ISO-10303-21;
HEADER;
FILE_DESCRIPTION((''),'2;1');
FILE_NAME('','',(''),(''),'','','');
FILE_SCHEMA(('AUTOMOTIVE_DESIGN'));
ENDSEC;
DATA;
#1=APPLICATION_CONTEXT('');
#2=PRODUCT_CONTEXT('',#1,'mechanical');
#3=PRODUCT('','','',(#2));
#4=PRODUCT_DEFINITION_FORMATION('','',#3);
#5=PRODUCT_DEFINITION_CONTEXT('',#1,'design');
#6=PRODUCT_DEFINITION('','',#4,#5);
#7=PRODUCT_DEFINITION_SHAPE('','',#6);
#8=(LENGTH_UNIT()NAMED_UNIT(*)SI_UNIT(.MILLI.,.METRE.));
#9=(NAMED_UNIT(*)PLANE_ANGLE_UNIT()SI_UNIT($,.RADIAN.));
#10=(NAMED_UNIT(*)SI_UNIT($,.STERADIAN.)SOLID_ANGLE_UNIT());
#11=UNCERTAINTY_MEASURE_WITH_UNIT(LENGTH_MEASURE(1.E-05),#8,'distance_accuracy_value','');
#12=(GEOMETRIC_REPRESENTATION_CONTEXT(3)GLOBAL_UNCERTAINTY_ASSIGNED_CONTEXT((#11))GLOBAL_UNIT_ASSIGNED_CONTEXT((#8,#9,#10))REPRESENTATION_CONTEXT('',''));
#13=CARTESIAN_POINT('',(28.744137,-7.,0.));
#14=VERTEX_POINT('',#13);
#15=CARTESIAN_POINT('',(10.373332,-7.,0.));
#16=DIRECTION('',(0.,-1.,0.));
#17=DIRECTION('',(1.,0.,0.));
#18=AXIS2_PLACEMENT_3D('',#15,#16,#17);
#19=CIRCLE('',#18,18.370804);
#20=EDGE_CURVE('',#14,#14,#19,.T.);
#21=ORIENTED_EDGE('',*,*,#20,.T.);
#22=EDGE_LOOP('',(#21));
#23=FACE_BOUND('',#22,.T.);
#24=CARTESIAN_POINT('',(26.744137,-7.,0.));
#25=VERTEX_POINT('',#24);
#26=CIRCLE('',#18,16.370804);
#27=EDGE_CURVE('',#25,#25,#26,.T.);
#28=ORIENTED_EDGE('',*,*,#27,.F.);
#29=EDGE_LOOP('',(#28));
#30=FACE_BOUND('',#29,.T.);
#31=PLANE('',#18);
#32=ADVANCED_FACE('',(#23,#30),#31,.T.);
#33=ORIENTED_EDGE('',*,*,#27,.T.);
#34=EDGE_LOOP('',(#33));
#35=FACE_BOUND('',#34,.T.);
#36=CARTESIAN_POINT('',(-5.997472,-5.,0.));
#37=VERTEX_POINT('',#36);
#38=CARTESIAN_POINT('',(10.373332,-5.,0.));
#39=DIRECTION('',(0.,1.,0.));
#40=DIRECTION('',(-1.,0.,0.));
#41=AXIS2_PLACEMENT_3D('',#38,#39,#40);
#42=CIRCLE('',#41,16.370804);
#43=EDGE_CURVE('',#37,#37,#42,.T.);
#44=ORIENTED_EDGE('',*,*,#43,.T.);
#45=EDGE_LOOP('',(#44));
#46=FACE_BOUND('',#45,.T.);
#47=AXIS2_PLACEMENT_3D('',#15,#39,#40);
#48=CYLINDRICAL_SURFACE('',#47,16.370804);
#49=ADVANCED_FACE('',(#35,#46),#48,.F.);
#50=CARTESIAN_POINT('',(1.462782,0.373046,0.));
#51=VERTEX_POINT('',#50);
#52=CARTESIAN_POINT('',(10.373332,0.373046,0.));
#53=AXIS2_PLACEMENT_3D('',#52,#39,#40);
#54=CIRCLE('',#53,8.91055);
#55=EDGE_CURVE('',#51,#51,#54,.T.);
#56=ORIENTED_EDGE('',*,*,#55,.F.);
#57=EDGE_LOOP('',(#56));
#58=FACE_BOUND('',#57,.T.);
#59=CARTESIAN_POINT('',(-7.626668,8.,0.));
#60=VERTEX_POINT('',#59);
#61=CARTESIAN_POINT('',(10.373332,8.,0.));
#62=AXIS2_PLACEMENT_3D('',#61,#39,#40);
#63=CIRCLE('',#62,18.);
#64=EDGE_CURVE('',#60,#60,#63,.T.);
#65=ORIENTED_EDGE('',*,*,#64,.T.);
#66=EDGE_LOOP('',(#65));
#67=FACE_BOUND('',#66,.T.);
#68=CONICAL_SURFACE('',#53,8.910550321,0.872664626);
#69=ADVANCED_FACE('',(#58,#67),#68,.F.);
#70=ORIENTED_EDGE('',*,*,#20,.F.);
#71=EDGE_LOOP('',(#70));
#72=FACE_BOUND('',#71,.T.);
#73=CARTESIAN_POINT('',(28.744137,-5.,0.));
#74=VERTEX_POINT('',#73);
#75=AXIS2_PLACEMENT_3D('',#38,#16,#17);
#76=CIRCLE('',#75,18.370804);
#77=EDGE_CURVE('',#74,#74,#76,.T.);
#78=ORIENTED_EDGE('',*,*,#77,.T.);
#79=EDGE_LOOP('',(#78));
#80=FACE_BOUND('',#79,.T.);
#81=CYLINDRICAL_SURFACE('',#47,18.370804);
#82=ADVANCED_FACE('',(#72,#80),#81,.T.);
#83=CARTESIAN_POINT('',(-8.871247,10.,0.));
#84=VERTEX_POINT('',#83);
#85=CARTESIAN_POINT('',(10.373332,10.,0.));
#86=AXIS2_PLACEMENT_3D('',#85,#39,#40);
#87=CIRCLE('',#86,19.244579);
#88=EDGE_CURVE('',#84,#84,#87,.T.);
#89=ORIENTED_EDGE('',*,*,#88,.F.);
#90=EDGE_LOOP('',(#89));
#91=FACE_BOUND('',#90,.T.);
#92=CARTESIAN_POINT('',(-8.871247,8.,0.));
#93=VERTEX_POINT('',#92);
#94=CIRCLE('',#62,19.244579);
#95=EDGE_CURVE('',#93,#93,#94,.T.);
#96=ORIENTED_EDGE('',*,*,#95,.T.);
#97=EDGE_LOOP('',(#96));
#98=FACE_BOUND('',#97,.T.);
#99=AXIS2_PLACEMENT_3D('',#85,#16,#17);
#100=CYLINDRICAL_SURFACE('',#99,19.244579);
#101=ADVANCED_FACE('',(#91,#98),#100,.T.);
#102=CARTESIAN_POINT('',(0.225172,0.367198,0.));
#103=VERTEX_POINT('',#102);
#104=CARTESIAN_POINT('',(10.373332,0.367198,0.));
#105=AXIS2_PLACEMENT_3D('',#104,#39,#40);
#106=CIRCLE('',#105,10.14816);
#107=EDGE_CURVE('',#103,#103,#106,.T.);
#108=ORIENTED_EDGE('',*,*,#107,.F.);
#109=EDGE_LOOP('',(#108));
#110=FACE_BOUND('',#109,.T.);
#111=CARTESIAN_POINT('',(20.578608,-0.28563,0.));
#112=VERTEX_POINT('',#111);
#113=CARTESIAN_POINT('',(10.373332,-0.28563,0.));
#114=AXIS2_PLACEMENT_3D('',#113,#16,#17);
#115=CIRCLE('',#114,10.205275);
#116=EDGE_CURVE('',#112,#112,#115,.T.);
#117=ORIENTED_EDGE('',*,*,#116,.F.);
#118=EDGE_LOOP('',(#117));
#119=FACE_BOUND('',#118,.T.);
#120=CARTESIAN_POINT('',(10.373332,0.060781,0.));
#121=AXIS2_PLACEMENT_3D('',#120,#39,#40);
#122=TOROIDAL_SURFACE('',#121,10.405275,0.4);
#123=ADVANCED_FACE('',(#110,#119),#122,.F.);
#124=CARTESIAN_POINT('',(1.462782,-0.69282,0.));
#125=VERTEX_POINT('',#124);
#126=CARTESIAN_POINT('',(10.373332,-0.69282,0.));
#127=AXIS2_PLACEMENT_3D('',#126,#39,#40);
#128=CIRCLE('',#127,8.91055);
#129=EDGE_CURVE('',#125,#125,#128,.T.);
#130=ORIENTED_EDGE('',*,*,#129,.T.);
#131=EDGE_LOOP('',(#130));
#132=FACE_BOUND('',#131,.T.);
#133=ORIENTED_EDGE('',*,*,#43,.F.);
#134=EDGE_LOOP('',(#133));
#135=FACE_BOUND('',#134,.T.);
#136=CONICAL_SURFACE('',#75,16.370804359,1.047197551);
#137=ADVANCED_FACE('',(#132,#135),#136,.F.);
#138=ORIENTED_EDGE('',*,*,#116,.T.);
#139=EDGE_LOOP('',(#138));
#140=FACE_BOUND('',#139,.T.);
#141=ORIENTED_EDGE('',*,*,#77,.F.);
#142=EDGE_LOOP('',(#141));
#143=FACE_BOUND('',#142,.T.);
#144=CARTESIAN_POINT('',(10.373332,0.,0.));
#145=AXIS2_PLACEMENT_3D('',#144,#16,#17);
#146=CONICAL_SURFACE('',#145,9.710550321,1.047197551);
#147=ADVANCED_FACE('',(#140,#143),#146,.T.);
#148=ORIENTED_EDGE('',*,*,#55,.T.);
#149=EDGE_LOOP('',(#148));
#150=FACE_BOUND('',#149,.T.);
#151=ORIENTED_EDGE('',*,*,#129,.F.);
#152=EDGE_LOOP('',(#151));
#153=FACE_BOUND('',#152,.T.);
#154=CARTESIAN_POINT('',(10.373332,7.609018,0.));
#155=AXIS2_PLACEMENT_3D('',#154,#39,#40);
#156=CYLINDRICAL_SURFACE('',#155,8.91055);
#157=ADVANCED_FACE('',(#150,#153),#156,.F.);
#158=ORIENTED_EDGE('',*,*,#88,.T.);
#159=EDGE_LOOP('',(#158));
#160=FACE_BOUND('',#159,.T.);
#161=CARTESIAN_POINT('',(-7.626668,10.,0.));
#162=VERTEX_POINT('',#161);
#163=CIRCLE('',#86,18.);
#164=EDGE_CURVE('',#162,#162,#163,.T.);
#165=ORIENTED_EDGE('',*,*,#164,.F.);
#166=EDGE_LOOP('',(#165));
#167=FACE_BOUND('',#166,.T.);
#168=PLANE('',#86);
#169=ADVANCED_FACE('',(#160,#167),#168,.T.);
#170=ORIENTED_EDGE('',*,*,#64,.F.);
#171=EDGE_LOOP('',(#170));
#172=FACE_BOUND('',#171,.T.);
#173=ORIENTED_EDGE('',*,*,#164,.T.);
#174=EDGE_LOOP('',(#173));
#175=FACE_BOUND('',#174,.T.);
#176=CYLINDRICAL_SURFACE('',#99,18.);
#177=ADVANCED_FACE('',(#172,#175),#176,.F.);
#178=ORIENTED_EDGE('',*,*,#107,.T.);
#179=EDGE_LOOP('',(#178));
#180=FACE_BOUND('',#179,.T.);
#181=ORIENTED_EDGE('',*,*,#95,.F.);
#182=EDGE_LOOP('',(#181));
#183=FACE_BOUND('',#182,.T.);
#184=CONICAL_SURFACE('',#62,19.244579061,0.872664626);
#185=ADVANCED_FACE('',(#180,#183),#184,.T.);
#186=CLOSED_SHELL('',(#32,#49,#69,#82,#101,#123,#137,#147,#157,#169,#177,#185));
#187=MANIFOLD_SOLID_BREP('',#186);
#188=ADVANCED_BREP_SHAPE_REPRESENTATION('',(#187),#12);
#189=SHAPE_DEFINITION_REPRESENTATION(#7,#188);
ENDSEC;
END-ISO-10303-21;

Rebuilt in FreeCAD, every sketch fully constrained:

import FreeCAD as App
import Part
import Sketcher
Q = App.Units.Quantity


def edges_at(feature, points):
    """Names of the edges that pass closest to the given points."""
    edges = feature.Shape.Edges
    near = lambda p: min(range(len(edges)), key=lambda i: edges[i].distToShape(Part.Vertex(*p))[0])
    return sorted({f"Edge{near(p) + 1}" for p in points})

doc = App.newDocument("Part")
params = doc.addObject("Spreadsheet::Sheet", "Params")
for row, (alias, value) in enumerate([
    ("sketch1_width", "2 mm"),
    ("sketch1_height", "13 mm"),
    ("sketch1_length", "10 mm"),
    ("revolution_angle", "360 deg"),
    ("fillet_radius", "0.4 mm"),
    ("sketch2_diameter", "36 mm"),
    ("pad1_length", "2 mm"),
    ("pad2_length", "2 mm"),
], start=1):
    params.set(f"A{row}", alias)
    params.set(f"B{row}", "=" + value)
    params.setAlias(f"B{row}", alias)

body = doc.addObject("PartDesign::Body", "Body")

# Sketch on XY plane
sketch1 = body.newObject("Sketcher::SketchObject", "Sketch")
sketch1.AttachmentSupport = (doc.getObject("XY_Plane"), [""])
sketch1.MapMode = "FlatFace"
sketch1.addGeometry(Part.LineSegment(App.Vector(-8.871247, 8, 0), App.Vector(0.662782, 0, 0)), False)
sketch1.addGeometry(Part.LineSegment(App.Vector(0.662782, 0, 0), App.Vector(-7.997472, -5, 0)), False)
sketch1.addGeometry(Part.LineSegment(App.Vector(-7.997472, -5, 0), App.Vector(-5.997472, -5, 0)), False)
sketch1.addGeometry(Part.LineSegment(App.Vector(-5.997472, -5, 0), App.Vector(1.462782, -0.69282, 0)), False)
sketch1.addGeometry(Part.LineSegment(App.Vector(1.462782, -0.69282, 0), App.Vector(1.462782, 0.373046, 0)), False)
sketch1.addGeometry(Part.LineSegment(App.Vector(1.462782, 0.373046, 0), App.Vector(-7.626668, 8, 0)), False)
sketch1.addGeometry(Part.LineSegment(App.Vector(-7.626668, 8, 0), App.Vector(-8.871247, 8, 0)), False)
sketch1.addGeometry(Part.LineSegment(App.Vector(10.373332, 8, 0), App.Vector(10.373332, -5, 0)), True)  # axis
sketch1.addConstraint(Sketcher.Constraint("Coincident", 0, 2, 1, 1))
sketch1.addConstraint(Sketcher.Constraint("Coincident", 1, 2, 2, 1))
sketch1.addConstraint(Sketcher.Constraint("Coincident", 2, 2, 3, 1))
sketch1.addConstraint(Sketcher.Constraint("Coincident", 3, 2, 4, 1))
sketch1.addConstraint(Sketcher.Constraint("Coincident", 4, 2, 5, 1))
sketch1.addConstraint(Sketcher.Constraint("Coincident", 5, 2, 6, 1))
sketch1.addConstraint(Sketcher.Constraint("Coincident", 6, 2, 0, 1))
sketch1.addConstraint(Sketcher.Constraint("Horizontal", 2))
sketch1.addConstraint(Sketcher.Constraint("Vertical", 4))
sketch1.addConstraint(Sketcher.Constraint("Horizontal", 6))
sketch1.addConstraint(Sketcher.Constraint("Vertical", 7))
sketch1.addConstraint(Sketcher.Constraint("PointOnObject", 0, 2, -1))
sketch1.addConstraint(Sketcher.Constraint("Parallel", 1, 3))
sketch1.addConstraint(Sketcher.Constraint("Parallel", 0, 5))
sketch1.addConstraint(Sketcher.Constraint("Horizontal", 6, 2, 7, 1))
sketch1.addConstraint(Sketcher.Constraint("Horizontal", 2, 2, 7, 2))
sketch1.addConstraint(Sketcher.Constraint("DistanceX", 2, 1, 2, 2, Q("2 mm")))
sketch1.addConstraint(Sketcher.Constraint("DistanceY", 7, 2, 7, 1, Q("13 mm")))
sketch1.addConstraint(Sketcher.Constraint("Angle", 0, Q("-40 deg")))
sketch1.addConstraint(Sketcher.Constraint("Angle", 1, Q("-150 deg")))
sketch1.addConstraint(Sketcher.Constraint("Distance", 1, Q("10 mm")))
sketch1.addConstraint(Sketcher.Constraint("DistanceX", 5, 2, 7, 1, Q("18 mm")))
sketch1.addConstraint(Sketcher.Constraint("DistanceX", 0, 2, 3, 2, Q("0.8 mm")))
sketch1.addConstraint(Sketcher.Constraint("DistanceX", 6, 2, 6, 1, Q("1.244579 mm")))
sketch1.addConstraint(Sketcher.Constraint("DistanceX", -1, 1, 0, 2, Q("0.662782 mm")))
sketch1.setExpression("Constraints[16]", "Params.sketch1_width")
sketch1.setExpression("Constraints[17]", "Params.sketch1_height")
sketch1.setExpression("Constraints[20]", "Params.sketch1_length")
revolution = body.newObject("PartDesign::Revolution", "Revolution")
revolution.Profile = sketch1
revolution.ReferenceAxis = (sketch1, ["Axis0"])
revolution.setExpression("Angle", "Params.revolution_angle")
doc.recompute()

fillet = body.newObject("PartDesign::Fillet", "Fillet")
fillet.Base = (revolution, edges_at(revolution, [(20.084, 0, 0)]))
fillet.setExpression("Radius", "Params.fillet_radius")

# Sketch on XZ plane
sketch2 = body.newObject("Sketcher::SketchObject", "Sketch001")
sketch2.AttachmentSupport = (doc.getObject("XZ_Plane"), [""])
sketch2.MapMode = "FlatFace"
sketch2.AttachmentOffset = App.Placement(App.Vector(0, 0, -8), App.Rotation())
sketch2.addGeometry(Part.Circle(App.Vector(10.373332, 0, 0), App.Vector(0, 0, 1), 19.244579), False)
sketch2.addGeometry(Part.Circle(App.Vector(10.373332, 0, 0), App.Vector(0, 0, 1), 18), False)
sketch2.addConstraint(Sketcher.Constraint("Coincident", 1, 3, 0, 3))
sketch2.addConstraint(Sketcher.Constraint("PointOnObject", 0, 3, -1))
sketch2.addConstraint(Sketcher.Constraint("Diameter", 1, Q("36 mm")))
sketch2.addConstraint(Sketcher.Constraint("Diameter", 0, Q("38.489158 mm")))
sketch2.addConstraint(Sketcher.Constraint("DistanceX", -1, 1, 0, 3, Q("10.373332 mm")))
sketch2.setExpression("Constraints[2]", "Params.sketch2_diameter")
pad1 = body.newObject("PartDesign::Pad", "Pad")
pad1.Profile = sketch2
pad1.setExpression("Length", "Params.pad1_length")
pad1.Reversed = True

# Sketch on XZ plane
sketch3 = body.newObject("Sketcher::SketchObject", "Sketch002")
sketch3.AttachmentSupport = (doc.getObject("XZ_Plane"), [""])
sketch3.MapMode = "FlatFace"
sketch3.AttachmentOffset = App.Placement(App.Vector(0, 0, 5), App.Rotation())
sketch3.addGeometry(Part.Circle(App.Vector(10.373332, 0, 0), App.Vector(0, 0, 1), 18.370804), False)
sketch3.addGeometry(Part.Circle(App.Vector(10.373332, 0, 0), App.Vector(0, 0, 1), 16.370804), False)
sketch3.addConstraint(Sketcher.Constraint("Coincident", 1, 3, 0, 3))
sketch3.addConstraint(Sketcher.Constraint("PointOnObject", 0, 3, -1))
sketch3.addConstraint(Sketcher.Constraint("Diameter", 0, Q("36.741609 mm")))
sketch3.addConstraint(Sketcher.Constraint("Diameter", 1, Q("32.741609 mm")))
sketch3.addConstraint(Sketcher.Constraint("DistanceX", -1, 1, 0, 3, Q("10.373332 mm")))
pad2 = body.newObject("PartDesign::Pad", "Pad001")
pad2.Profile = sketch3
pad2.setExpression("Length", "Params.pad2_length")

doc.recompute()
